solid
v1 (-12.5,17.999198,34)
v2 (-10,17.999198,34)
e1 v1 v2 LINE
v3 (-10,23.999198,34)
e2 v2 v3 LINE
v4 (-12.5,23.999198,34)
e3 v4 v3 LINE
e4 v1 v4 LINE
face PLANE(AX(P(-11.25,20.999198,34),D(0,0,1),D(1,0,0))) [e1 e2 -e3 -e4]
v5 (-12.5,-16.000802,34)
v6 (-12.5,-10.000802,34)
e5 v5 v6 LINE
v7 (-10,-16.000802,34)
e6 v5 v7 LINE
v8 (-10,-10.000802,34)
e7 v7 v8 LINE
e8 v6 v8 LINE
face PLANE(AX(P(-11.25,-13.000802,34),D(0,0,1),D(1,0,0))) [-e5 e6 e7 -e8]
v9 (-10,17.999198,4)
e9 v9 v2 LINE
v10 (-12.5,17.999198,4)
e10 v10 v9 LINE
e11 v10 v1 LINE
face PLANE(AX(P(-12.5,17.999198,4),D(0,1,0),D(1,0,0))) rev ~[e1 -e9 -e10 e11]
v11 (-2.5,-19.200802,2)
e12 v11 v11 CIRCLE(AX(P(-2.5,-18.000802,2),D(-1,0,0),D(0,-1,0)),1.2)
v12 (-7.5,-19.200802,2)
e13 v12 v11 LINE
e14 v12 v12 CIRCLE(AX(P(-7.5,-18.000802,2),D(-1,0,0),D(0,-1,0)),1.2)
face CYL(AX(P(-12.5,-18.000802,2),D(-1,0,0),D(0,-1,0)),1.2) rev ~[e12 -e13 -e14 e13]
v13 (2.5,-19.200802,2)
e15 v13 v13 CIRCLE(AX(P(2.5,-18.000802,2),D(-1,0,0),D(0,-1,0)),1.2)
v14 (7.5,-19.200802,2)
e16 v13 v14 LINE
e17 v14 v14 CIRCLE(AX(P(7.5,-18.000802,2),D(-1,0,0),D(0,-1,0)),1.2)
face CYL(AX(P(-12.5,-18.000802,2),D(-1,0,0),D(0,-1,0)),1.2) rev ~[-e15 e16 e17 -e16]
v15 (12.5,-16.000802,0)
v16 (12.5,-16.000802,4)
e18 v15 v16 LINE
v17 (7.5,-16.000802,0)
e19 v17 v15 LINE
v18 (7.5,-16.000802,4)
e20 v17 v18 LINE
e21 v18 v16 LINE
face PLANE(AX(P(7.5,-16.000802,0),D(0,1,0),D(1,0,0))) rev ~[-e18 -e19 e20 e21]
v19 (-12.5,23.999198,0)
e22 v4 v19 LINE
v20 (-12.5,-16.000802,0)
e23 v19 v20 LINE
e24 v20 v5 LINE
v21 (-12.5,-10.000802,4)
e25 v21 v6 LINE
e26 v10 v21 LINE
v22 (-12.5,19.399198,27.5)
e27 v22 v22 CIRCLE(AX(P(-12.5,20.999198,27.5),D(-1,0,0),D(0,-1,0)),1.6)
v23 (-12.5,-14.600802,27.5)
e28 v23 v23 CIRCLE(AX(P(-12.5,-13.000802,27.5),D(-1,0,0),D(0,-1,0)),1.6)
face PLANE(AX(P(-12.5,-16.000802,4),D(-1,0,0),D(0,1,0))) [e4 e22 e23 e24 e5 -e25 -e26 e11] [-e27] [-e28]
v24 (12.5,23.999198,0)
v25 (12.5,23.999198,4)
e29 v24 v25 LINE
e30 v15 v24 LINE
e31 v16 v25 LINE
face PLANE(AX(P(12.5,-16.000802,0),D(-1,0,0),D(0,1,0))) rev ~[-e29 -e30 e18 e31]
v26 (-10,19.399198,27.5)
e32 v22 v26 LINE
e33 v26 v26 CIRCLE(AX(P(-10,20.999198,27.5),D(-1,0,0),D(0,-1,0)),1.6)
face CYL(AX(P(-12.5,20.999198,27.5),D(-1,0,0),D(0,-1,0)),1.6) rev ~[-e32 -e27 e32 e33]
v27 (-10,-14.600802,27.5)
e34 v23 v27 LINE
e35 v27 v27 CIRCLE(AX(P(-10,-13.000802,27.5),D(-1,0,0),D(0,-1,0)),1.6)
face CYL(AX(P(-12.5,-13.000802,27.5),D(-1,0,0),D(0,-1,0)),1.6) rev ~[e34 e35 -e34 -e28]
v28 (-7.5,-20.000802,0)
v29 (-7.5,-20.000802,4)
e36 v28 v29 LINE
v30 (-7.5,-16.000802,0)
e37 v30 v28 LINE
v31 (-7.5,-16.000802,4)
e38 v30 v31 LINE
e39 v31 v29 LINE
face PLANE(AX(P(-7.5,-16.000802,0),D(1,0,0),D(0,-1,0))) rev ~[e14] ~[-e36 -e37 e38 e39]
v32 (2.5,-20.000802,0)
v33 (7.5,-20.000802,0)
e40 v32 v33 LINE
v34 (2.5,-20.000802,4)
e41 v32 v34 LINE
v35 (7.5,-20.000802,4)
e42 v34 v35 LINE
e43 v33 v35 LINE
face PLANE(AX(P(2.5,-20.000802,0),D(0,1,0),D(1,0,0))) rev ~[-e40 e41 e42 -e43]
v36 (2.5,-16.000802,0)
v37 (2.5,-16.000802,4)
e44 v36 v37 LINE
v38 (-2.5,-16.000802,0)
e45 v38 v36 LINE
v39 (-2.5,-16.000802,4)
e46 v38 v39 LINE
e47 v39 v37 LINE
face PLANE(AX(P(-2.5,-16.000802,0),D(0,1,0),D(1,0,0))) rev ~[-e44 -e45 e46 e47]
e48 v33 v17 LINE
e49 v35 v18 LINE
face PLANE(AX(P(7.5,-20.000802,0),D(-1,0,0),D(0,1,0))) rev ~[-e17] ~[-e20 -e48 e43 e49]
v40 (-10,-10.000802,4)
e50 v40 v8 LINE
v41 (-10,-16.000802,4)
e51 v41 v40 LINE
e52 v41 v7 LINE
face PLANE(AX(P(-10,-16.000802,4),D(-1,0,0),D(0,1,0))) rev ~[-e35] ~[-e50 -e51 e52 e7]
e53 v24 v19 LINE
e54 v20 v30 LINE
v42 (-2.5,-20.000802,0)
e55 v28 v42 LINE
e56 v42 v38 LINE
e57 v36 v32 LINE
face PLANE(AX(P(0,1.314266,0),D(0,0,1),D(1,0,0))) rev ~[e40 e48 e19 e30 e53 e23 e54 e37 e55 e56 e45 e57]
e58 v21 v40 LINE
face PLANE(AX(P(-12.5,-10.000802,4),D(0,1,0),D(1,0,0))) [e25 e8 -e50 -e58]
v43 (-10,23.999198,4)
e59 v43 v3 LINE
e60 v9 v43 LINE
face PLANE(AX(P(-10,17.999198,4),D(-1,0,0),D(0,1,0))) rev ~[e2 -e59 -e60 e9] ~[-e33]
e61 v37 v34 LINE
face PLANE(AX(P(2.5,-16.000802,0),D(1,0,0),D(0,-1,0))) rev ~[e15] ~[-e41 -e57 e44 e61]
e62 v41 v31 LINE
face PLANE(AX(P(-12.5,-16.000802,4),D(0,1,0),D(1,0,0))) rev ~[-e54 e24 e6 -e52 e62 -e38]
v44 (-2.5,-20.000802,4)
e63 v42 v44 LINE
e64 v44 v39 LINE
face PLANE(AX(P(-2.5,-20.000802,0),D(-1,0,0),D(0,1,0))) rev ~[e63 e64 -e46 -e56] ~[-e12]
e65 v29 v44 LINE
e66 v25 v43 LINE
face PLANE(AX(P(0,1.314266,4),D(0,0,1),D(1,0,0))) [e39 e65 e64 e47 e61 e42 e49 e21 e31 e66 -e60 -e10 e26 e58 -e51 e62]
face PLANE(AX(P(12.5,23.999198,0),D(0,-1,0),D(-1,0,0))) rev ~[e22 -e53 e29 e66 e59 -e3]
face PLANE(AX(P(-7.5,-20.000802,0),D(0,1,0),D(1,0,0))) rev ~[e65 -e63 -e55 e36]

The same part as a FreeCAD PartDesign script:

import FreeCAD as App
import Part
import Sketcher
from FreeCAD import Vector
Q = App.Units.Quantity

doc = App.newDocument("Part")
body = doc.addObject("PartDesign::Body", "Body")

# Sketch on XY plane
sketch1 = body.newObject("Sketcher::SketchObject", "Sketch")
sketch1.AttachmentSupport = (doc.getObject("XY_Plane"), [""])
sketch1.MapMode = "FlatFace"
sketch1.addGeometry(Part.LineSegment(Vector(-7.5, -20, 0), Vector(-2.5, -20, 0)), False)
sketch1.addGeometry(Part.LineSegment(Vector(-2.5, -20, 0), Vector(-2.5, -16, 0)), False)
sketch1.addGeometry(Part.LineSegment(Vector(-2.5, -16, 0), Vector(2.5, -16, 0)), False)
sketch1.addGeometry(Part.LineSegment(Vector(2.5, -16, 0), Vector(2.5, -20, 0)), False)
sketch1.addGeometry(Part.LineSegment(Vector(2.5, -20, 0), Vector(7.5, -20, 0)), False)
sketch1.addGeometry(Part.LineSegment(Vector(7.5, -20, 0), Vector(7.5, -16, 0)), False)
sketch1.addGeometry(Part.LineSegment(Vector(7.5, -16, 0), Vector(12.5, -16, 0)), False)
sketch1.addGeometry(Part.LineSegment(Vector(12.5, -16, 0), Vector(12.5, 24, 0)), False)
sketch1.addGeometry(Part.LineSegment(Vector(12.5, 24, 0), Vector(-12.5, 24, 0)), False)
sketch1.addGeometry(Part.LineSegment(Vector(-12.5, 24, 0), Vector(-12.5, -16, 0)), False)
sketch1.addGeometry(Part.LineSegment(Vector(-12.5, -16, 0), Vector(-7.5, -16, 0)), False)
sketch1.addGeometry(Part.LineSegment(Vector(-7.5, -16, 0), Vector(-7.5, -20, 0)), False)
sketch1.addConstraint(Sketcher.Constraint("Coincident", 0, 2, 1, 1))
sketch1.addConstraint(Sketcher.Constraint("Coincident", 1, 2, 2, 1))
sketch1.addConstraint(Sketcher.Constraint("Coincident", 2, 2, 3, 1))
sketch1.addConstraint(Sketcher.Constraint("Coincident", 3, 2, 4, 1))
sketch1.addConstraint(Sketcher.Constraint("Coincident", 4, 2, 5, 1))
sketch1.addConstraint(Sketcher.Constraint("Coincident", 5, 2, 6, 1))
sketch1.addConstraint(Sketcher.Constraint("Coincident", 6, 2, 7, 1))
sketch1.addConstraint(Sketcher.Constraint("Coincident", 7, 2, 8, 1))
sketch1.addConstraint(Sketcher.Constraint("Coincident", 8, 2, 9, 1))
sketch1.addConstraint(Sketcher.Constraint("Coincident", 9, 2, 10, 1))
sketch1.addConstraint(Sketcher.Constraint("Coincident", 10, 2, 11, 1))
sketch1.addConstraint(Sketcher.Constraint("Coincident", 11, 2, 0, 1))
sketch1.addConstraint(Sketcher.Constraint("Horizontal", 0))
sketch1.addConstraint(Sketcher.Constraint("Vertical", 1))
sketch1.addConstraint(Sketcher.Constraint("Horizontal", 2))
sketch1.addConstraint(Sketcher.Constraint("Vertical", 3))
sketch1.addConstraint(Sketcher.Constraint("Horizontal", 4))
sketch1.addConstraint(Sketcher.Constraint("Vertical", 5))
sketch1.addConstraint(Sketcher.Constraint("Horizontal", 6))
sketch1.addConstraint(Sketcher.Constraint("Vertical", 7))
sketch1.addConstraint(Sketcher.Constraint("Horizontal", 8))
sketch1.addConstraint(Sketcher.Constraint("Vertical", 9))
sketch1.addConstraint(Sketcher.Constraint("Horizontal", 10))
sketch1.addConstraint(Sketcher.Constraint("Vertical", 11))
sketch1.addConstraint(Sketcher.Constraint("Symmetric", 0, 2, 3, 2, -2))
sketch1.addConstraint(Sketcher.Constraint("Symmetric", 6, 2, 9, 2, -2))
sketch1.addConstraint(Sketcher.Constraint("Horizontal", 2, 2, 5, 2))
sketch1.addConstraint(Sketcher.Constraint("Equal", 0, 2))
sketch1.addConstraint(Sketcher.Constraint("Equal", 2, 4))
sketch1.addConstraint(Sketcher.Constraint("Equal", 4, 6))
sketch1.addConstraint(Sketcher.Constraint("DistanceX", 0, 1, 0, 2, Q("5 mm")))
sketch1.addConstraint(Sketcher.Constraint("DistanceY", 1, 1, 1, 2, Q("4 mm")))
sketch1.addConstraint(Sketcher.Constraint("DistanceY", 7, 1, 7, 2, Q("40 mm")))
sketch1.addConstraint(Sketcher.Constraint("DistanceY", 0, 2, -1, 1, Q("20.000802 mm")))
pad1 = body.newObject("PartDesign::Pad", "Pad")
pad1.Profile = sketch1
pad1.Length = 4

# Sketch on XY plane
sketch2 = body.newObject("Sketcher::SketchObject", "Sketch001")
sketch2.AttachmentSupport = (doc.getObject("XY_Plane"), [""])
sketch2.MapMode = "FlatFace"
sketch2.AttachmentOffset = App.Placement(Vector(0, 0, 4), App.Rotation())
sketch2.addGeometry(Part.LineSegment(Vector(-12.5, -10, 0), Vector(-12.5, -16, 0)), False)
sketch2.addGeometry(Part.LineSegment(Vector(-12.5, -16, 0), Vector(-10, -16, 0)), False)
sketch2.addGeometry(Part.LineSegment(Vector(-10, -16, 0), Vector(-10, -10, 0)), False)
sketch2.addGeometry(Part.LineSegment(Vector(-10, -10, 0), Vector(-12.5, -10, 0)), False)
sketch2.addGeometry(Part.LineSegment(Vector(-12.5, 24, 0), Vector(-12.5, 18, 0)), False)
sketch2.addGeometry(Part.LineSegment(Vector(-12.5, 18, 0), Vector(-10, 18, 0)), False)
sketch2.addGeometry(Part.LineSegment(Vector(-10, 18, 0), Vector(-10, 24, 0)), False)
sketch2.addGeometry(Part.LineSegment(Vector(-10, 24, 0), Vector(-12.5, 24, 0)), False)
sketch2.addConstraint(Sketcher.Constraint("Coincident", 0, 2, 1, 1))
sketch2.addConstraint(Sketcher.Constraint("Coincident", 1, 2, 2, 1))
sketch2.addConstraint(Sketcher.Constraint("Coincident", 2, 2, 3, 1))
sketch2.addConstraint(Sketcher.Constraint("Coincident", 3, 2, 0, 1))
sketch2.addConstraint(Sketcher.Constraint("Coincident", 4, 2, 5, 1))
sketch2.addConstraint(Sketcher.Constraint("Coincident", 5, 2, 6, 1))
sketch2.addConstraint(Sketcher.Constraint("Coincident", 6, 2, 7, 1))
sketch2.addConstraint(Sketcher.Constraint("Coincident", 7, 2, 4, 1))
sketch2.addConstraint(Sketcher.Constraint("Vertical", 0))
sketch2.addConstraint(Sketcher.Constraint("Horizontal", 1))
sketch2.addConstraint(Sketcher.Constraint("Vertical", 2))
sketch2.addConstraint(Sketcher.Constraint("Horizontal", 3))
sketch2.addConstraint(Sketcher.Constraint("Vertical", 4))
sketch2.addConstraint(Sketcher.Constraint("Horizontal", 5))
sketch2.addConstraint(Sketcher.Constraint("Vertical", 6))
sketch2.addConstraint(Sketcher.Constraint("Horizontal", 7))
sketch2.addConstraint(Sketcher.Constraint("Vertical", 3, 2, 4, 2))
sketch2.addConstraint(Sketcher.Constraint("Vertical", 2, 2, 5, 2))
sketch2.addConstraint(Sketcher.Constraint("Equal", 2, 4))
sketch2.addConstraint(Sketcher.Constraint("DistanceY", 0, 2, 0, 1, Q("6 mm")))
sketch2.addConstraint(Sketcher.Constraint("DistanceX", 1, 1, 1, 2, Q("2.5 mm")))
sketch2.addConstraint(Sketcher.Constraint("DistanceX", 1, 2, -1, 1, Q("10 mm")))
sketch2.addConstraint(Sketcher.Constraint("DistanceY", 3, 2, 4, 2, Q("28 mm")))
sketch2.addConstraint(Sketcher.Constraint("DistanceY", 0, 2, -1, 1, Q("16.000802 mm")))
pad2 = body.newObject("PartDesign::Pad", "Pad001")
pad2.Profile = sketch2
pad2.Length = 30

# Sketch on YZ plane
sketch3 = body.newObject("Sketcher::SketchObject", "Sketch002")
sketch3.AttachmentSupport = (doc.getObject("YZ_Plane"), [""])
sketch3.MapMode = "FlatFace"
sketch3.AttachmentOffset = App.Placement(Vector(0, 0, -12.5), App.Rotation())
sketch3.addGeometry(Part.Circle(Vector(-18, 2, 0), Vector(0, 0, 1), 1.2), False)
sketch3.addGeometry(Part.Circle(Vector(-13, 27.5, 0), Vector(0, 0, 1), 1.6), False)
sketch3.addGeometry(Part.Circle(Vector(21, 27.5, 0), Vector(0, 0, 1), 1.6), False)
sketch3.addConstraint(Sketcher.Constraint("Equal", 1, 2))
sketch3.addConstraint(Sketcher.Constraint("Horizontal", 1, 3, 2, 3))
sketch3.addConstraint(Sketcher.Constraint("Diameter", 0, Q("2.4 mm")))
sketch3.addConstraint(Sketcher.Constraint("Diameter", 1, Q("3.2 mm")))
sketch3.addConstraint(Sketcher.Constraint("DistanceY", -1, 1, 0, 3, Q("2 mm")))
sketch3.addConstraint(Sketcher.Constraint("DistanceX", 0, 3, 1, 3, Q("5 mm")))
sketch3.addConstraint(Sketcher.Constraint("DistanceX", 1, 3, 2, 3, Q("34 mm")))
sketch3.addConstraint(Sketcher.Constraint("DistanceY", -1, 1, 1, 3, Q("27.5 mm")))
sketch3.addConstraint(Sketcher.Constraint("DistanceX", 0, 3, -1, 1, Q("18.000802 mm")))
pocket1 = body.newObject("PartDesign::Pocket", "Pocket")
pocket1.Profile = sketch3
pocket1.Type = "ThroughAll"
pocket1.Reversed = True

doc.recompute()
